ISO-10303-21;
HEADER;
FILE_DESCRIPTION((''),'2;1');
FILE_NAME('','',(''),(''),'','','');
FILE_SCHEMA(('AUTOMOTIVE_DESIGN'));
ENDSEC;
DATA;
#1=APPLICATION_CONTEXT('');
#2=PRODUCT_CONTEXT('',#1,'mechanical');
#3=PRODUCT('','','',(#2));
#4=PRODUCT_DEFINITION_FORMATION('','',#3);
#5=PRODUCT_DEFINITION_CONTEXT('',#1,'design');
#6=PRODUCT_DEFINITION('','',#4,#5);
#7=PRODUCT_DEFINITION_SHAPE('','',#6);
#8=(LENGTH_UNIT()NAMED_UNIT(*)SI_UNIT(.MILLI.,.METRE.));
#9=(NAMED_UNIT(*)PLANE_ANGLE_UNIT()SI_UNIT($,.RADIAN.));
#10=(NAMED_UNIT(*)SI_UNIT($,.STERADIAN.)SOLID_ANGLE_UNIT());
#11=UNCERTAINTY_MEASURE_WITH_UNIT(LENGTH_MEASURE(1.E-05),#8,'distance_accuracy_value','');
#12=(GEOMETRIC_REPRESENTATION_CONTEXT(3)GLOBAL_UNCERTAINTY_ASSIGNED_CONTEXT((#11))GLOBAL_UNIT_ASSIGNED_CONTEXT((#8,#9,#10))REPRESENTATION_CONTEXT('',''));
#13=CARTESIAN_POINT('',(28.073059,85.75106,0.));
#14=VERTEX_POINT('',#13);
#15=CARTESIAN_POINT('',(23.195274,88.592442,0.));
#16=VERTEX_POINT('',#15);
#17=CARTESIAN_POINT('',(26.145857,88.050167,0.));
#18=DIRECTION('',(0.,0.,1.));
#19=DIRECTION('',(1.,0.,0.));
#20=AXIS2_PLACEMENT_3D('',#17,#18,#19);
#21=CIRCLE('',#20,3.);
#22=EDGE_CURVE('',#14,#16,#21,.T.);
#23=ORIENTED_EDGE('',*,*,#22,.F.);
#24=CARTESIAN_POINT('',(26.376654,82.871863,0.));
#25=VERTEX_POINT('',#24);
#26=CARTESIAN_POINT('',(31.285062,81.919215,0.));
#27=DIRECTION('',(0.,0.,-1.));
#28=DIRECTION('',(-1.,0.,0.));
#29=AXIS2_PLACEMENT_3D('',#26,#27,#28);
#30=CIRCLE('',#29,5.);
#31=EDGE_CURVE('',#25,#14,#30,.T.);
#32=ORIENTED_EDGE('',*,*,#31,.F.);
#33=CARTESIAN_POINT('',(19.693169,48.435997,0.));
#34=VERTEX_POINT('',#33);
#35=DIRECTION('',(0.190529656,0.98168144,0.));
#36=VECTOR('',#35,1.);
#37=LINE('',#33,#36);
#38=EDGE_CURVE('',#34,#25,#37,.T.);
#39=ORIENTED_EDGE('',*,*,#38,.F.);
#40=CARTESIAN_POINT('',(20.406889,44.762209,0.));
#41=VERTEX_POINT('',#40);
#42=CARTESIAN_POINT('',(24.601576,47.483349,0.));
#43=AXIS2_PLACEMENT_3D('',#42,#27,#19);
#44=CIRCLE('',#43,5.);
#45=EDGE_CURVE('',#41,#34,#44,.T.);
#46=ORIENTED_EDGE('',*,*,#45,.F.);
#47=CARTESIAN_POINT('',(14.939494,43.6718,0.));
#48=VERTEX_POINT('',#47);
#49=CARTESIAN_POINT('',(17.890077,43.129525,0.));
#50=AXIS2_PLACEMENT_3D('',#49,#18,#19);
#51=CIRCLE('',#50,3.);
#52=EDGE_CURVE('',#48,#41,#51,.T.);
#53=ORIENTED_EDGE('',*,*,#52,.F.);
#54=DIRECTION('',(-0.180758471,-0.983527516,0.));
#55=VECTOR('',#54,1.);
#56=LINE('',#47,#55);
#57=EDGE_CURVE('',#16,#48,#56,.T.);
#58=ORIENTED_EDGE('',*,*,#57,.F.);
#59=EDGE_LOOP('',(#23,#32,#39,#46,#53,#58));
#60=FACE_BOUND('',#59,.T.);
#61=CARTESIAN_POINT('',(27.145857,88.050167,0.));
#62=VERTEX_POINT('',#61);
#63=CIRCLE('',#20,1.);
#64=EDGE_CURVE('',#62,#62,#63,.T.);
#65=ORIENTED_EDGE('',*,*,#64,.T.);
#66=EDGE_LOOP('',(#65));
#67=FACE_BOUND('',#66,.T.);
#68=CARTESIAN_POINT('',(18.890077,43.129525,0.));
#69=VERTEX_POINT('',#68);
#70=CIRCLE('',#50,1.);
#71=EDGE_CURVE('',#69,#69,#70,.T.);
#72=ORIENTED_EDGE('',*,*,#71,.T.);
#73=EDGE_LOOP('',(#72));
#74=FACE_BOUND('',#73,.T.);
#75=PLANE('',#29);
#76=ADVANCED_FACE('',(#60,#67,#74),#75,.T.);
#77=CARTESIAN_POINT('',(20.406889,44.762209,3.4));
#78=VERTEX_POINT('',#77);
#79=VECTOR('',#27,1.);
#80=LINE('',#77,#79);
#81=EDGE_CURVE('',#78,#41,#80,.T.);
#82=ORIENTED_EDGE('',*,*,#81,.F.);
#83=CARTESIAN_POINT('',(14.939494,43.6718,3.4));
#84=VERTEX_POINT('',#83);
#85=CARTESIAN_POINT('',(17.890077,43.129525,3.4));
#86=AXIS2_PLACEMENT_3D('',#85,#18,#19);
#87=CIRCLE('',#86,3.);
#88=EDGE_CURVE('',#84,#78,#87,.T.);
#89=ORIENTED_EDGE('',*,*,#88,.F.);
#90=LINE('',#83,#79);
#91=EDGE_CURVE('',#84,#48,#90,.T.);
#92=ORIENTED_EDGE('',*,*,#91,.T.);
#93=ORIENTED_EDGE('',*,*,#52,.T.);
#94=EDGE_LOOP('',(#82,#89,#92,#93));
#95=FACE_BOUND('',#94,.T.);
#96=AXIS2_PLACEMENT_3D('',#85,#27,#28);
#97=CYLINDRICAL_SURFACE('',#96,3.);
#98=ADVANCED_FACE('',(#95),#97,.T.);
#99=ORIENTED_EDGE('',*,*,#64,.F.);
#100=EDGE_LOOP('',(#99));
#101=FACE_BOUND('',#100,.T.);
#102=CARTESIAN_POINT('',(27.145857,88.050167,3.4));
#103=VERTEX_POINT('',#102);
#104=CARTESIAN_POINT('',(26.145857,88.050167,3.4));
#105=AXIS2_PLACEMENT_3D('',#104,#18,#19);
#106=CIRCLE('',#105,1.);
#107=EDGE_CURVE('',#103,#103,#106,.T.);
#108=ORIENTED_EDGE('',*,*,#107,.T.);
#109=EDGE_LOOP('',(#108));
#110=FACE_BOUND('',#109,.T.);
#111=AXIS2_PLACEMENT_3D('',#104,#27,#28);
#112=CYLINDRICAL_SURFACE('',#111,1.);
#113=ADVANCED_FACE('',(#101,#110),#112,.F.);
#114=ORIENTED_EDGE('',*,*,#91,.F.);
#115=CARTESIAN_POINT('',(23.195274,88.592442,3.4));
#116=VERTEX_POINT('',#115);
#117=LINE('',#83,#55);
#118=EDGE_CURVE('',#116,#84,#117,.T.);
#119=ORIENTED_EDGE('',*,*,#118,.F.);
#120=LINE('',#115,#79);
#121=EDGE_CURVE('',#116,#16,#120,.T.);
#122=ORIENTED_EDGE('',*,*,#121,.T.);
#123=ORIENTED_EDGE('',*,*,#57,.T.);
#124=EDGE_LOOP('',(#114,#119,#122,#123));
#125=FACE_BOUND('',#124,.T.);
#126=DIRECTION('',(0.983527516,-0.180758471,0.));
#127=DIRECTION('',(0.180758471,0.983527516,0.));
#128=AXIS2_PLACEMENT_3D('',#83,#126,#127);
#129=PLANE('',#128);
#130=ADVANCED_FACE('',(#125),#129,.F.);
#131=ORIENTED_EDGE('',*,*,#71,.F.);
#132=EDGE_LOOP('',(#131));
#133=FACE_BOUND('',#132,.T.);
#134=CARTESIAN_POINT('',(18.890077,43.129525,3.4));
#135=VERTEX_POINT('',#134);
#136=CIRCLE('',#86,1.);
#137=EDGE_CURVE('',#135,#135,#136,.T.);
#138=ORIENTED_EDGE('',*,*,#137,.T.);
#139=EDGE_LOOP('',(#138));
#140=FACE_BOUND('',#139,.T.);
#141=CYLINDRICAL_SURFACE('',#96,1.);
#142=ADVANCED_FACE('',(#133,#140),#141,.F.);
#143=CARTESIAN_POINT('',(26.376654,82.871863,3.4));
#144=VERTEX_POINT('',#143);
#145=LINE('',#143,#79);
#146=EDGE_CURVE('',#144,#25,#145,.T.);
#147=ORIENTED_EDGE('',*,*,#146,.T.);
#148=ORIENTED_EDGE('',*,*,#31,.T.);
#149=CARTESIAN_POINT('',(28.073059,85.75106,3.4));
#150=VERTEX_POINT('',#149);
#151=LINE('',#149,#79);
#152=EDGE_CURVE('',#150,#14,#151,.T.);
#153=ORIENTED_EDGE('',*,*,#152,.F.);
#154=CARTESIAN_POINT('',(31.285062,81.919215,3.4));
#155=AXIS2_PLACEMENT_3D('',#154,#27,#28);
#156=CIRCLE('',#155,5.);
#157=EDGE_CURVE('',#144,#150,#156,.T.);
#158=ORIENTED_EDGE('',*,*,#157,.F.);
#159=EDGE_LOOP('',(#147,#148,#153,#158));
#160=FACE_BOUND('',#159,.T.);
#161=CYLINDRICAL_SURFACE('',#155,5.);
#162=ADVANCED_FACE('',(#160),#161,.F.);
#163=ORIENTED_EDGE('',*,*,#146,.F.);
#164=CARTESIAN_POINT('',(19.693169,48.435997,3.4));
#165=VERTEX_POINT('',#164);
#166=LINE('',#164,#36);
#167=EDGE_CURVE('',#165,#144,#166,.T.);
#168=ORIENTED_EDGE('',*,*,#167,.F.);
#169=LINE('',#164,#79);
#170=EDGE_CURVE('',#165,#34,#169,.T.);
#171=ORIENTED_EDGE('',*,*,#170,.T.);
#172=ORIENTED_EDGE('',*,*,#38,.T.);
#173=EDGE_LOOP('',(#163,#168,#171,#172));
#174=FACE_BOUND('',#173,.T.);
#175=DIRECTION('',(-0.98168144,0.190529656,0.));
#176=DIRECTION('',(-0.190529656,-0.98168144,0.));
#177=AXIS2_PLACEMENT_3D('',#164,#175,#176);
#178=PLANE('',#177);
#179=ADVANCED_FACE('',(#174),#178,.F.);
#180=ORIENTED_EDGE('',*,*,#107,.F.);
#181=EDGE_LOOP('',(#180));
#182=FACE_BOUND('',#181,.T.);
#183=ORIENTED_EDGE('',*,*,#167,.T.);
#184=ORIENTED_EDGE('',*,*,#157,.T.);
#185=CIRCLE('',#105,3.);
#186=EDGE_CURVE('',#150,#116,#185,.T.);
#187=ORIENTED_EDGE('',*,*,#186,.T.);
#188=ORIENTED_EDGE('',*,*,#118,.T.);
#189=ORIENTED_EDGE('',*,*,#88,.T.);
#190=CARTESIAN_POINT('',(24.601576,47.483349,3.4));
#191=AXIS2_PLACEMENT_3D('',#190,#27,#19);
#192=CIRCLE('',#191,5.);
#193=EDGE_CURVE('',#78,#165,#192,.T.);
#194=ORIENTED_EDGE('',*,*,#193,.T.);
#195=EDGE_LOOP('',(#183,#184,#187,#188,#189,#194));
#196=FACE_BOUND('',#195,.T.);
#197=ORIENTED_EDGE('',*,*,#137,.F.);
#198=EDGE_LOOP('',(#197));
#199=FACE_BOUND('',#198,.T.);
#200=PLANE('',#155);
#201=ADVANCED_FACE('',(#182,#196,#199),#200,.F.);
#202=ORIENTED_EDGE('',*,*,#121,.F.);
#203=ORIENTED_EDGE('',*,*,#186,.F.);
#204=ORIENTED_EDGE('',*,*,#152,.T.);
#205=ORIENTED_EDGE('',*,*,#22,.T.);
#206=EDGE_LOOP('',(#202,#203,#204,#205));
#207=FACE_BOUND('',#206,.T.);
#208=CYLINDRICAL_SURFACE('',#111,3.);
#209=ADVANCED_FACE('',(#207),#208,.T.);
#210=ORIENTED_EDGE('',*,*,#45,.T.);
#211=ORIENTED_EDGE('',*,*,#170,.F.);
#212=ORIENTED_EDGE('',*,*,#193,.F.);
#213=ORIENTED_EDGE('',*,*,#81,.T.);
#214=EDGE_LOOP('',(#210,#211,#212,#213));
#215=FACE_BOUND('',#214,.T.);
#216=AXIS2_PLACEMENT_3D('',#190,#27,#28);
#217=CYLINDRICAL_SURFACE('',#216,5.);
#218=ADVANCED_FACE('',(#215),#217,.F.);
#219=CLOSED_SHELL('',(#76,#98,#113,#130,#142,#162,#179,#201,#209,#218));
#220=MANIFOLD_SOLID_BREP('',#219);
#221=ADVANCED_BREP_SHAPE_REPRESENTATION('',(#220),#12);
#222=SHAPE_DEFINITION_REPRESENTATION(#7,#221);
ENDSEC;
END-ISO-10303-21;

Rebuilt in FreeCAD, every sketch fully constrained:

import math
import FreeCAD as App
import Part
import Sketcher

doc = App.newDocument("Part")
body = doc.addObject("PartDesign::Body", "Body")

sketch1 = body.newObject("Sketcher::SketchObject", "Sketch")
sketch1.AttachmentSupport = (doc.getObject("XY_Plane"), [""])
sketch1.MapMode = "FlatFace"
sketch1.addGeometry([
    Part.LineSegment(App.Vector(23.195274, 88.592442, 0), App.Vector(14.939494, 43.6718, 0)),
    Part.ArcOfCircle(Part.Circle(App.Vector(17.890077, 43.129525, 0), App.Vector(0, 0, 1), 3), math.radians(169.586058), math.radians(392.971921)),
    Part.ArcOfCircle(Part.Circle(App.Vector(24.601576, 47.483349, 0), App.Vector(0, 0, 1), 5), math.radians(169.016304), math.radians(212.971921)),
    Part.LineSegment(App.Vector(19.693169, 48.435997, 0), App.Vector(26.376654, 82.871863, 0)),
    Part.ArcOfCircle(Part.Circle(App.Vector(31.285062, 81.919215, 0), App.Vector(0, 0, 1), 5), math.radians(129.97106), math.radians(169.016304)),
    Part.ArcOfCircle(Part.Circle(App.Vector(26.145857, 88.050167, 0), App.Vector(0, 0, 1), 3), math.radians(-50.02894), math.radians(169.586058)),
    Part.Circle(App.Vector(17.890077, 43.129525, 0), App.Vector(0, 0, 1), 1),
    Part.Circle(App.Vector(26.145857, 88.050167, 0), App.Vector(0, 0, 1), 1),
], False)
sketch1.addConstraint([
    Sketcher.Constraint("Tangent", 0, 2, 1, 1),
    Sketcher.Constraint("Tangent", 1, 2, 2, 2),
    Sketcher.Constraint("Tangent", 2, 1, 3, 1),
    Sketcher.Constraint("Tangent", 3, 2, 4, 2),
    Sketcher.Constraint("Tangent", 4, 1, 5, 1),
    Sketcher.Constraint("Tangent", 5, 2, 0, 1),
    Sketcher.Constraint("Coincident", 6, 3, 1, 3),
    Sketcher.Constraint("Coincident", 7, 3, 5, 3),
    Sketcher.Constraint("Equal", 2, 4),
    Sketcher.Constraint("Equal", 1, 5),
    Sketcher.Constraint("Equal", 6, 7),
    Sketcher.Constraint("Diameter", 6, 2.0),
    Sketcher.Constraint("Radius", 1, 3.0),
    Sketcher.Constraint("Radius", 2, 5.0),
    Sketcher.Constraint("DistanceY", -1, 1, 0, 2, 43.6718),
    Sketcher.Constraint("DistanceX", 1, 3, 2, 3, 6.711499),
    Sketcher.Constraint("DistanceX", 7, 3, 4, 1, 1.927202),
    Sketcher.Constraint("Distance", 0, 45.67299),
    Sketcher.Constraint("DistanceY", -1, 1, 2, 3, 47.483349),
    Sketcher.Constraint("DistanceX", -1, 1, 4, 3, 31.285062),
])
pad1 = body.newObject("PartDesign::Pad", "Pad")
pad1.Profile = sketch1
pad1.Length = 3.4

doc.recompute()
